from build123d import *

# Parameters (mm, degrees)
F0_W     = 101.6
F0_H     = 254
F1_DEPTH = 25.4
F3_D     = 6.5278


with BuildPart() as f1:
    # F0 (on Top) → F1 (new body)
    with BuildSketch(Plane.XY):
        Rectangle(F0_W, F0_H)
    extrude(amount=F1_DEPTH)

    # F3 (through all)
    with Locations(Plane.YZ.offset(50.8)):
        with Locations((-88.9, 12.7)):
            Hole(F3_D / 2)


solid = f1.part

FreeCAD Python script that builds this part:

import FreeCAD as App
import Part
import Sketcher
from FreeCAD import Vector
Q = App.Units.Quantity

doc = App.newDocument("Part")
body = doc.addObject("PartDesign::Body", "Body")

sketch1 = doc.addObject("Sketcher::SketchObject", "Sketch")
body.addObject(sketch1)
sketch1.AttachmentSupport = (doc.XY_Plane, [""])
sketch1.MapMode = "FlatFace"
sketch1.addGeometry(Part.LineSegment(Vector(-51, 127, 0), Vector(-51, -127, 0)), False)
sketch1.addGeometry(Part.LineSegment(Vector(-51, -127, 0), Vector(51, -127, 0)), False)
sketch1.addGeometry(Part.LineSegment(Vector(51, -127, 0), Vector(51, 127, 0)), False)
sketch1.addGeometry(Part.LineSegment(Vector(51, 127, 0), Vector(-51, 127, 0)), False)
sketch1.addConstraint(Sketcher.Constraint("Coincident", 0, 2, 1, 1))
sketch1.addConstraint(Sketcher.Constraint("Coincident", 1, 2, 2, 1))
sketch1.addConstraint(Sketcher.Constraint("Coincident", 2, 2, 3, 1))
sketch1.addConstraint(Sketcher.Constraint("Coincident", 3, 2, 0, 1))
sketch1.addConstraint(Sketcher.Constraint("Vertical", 0))
sketch1.addConstraint(Sketcher.Constraint("Horizontal", 1))
sketch1.addConstraint(Sketcher.Constraint("Vertical", 2))
sketch1.addConstraint(Sketcher.Constraint("Horizontal", 3))
sketch1.addConstraint(Sketcher.Constraint("Symmetric", 0, 2, 2, 2, -1, 1))
sketch1.addConstraint(Sketcher.Constraint("DistanceX", 1, 1, 1, 2, Q("4 in")))
sketch1.addConstraint(Sketcher.Constraint("DistanceY", 0, 2, 0, 1, Q("10 in")))
pad1 = doc.addObject("PartDesign::Pad", "Pad")
body.addObject(pad1)
pad1.Profile = sketch1
pad1.Length = Q("1 in")

sketch2 = doc.addObject("Sketcher::SketchObject", "Sketch001")
body.addObject(sketch2)
sketch2.AttachmentSupport = (doc.YZ_Plane, [""])
sketch2.MapMode = "FlatFace"
sketch2.AttachmentOffset = App.Placement(Vector(0, 0, 2 * 25.4), App.Rotation())
sketch2.addGeometry(Part.Circle(Vector(-88.9, 12.7, 0), Vector(0, 0, 1), 3.3), False)
sketch2.addConstraint(Sketcher.Constraint("Diameter", 0, Q("0.257 in")))
sketch2.addConstraint(Sketcher.Constraint("DistanceX", 0, 3, -1, 1, Q("3.5 in")))
sketch2.addConstraint(Sketcher.Constraint("DistanceY", -1, 1, 0, 3, Q("0.5 in")))
doc.recompute()
hole = doc.addObject("PartDesign::Hole", "Hole")
body.addObject(hole)
hole.Profile = sketch2
hole.ThreadType = "None"
hole.Diameter = Q("0.257 in")
hole.DepthType = "ThroughAll"

doc.recompute()
